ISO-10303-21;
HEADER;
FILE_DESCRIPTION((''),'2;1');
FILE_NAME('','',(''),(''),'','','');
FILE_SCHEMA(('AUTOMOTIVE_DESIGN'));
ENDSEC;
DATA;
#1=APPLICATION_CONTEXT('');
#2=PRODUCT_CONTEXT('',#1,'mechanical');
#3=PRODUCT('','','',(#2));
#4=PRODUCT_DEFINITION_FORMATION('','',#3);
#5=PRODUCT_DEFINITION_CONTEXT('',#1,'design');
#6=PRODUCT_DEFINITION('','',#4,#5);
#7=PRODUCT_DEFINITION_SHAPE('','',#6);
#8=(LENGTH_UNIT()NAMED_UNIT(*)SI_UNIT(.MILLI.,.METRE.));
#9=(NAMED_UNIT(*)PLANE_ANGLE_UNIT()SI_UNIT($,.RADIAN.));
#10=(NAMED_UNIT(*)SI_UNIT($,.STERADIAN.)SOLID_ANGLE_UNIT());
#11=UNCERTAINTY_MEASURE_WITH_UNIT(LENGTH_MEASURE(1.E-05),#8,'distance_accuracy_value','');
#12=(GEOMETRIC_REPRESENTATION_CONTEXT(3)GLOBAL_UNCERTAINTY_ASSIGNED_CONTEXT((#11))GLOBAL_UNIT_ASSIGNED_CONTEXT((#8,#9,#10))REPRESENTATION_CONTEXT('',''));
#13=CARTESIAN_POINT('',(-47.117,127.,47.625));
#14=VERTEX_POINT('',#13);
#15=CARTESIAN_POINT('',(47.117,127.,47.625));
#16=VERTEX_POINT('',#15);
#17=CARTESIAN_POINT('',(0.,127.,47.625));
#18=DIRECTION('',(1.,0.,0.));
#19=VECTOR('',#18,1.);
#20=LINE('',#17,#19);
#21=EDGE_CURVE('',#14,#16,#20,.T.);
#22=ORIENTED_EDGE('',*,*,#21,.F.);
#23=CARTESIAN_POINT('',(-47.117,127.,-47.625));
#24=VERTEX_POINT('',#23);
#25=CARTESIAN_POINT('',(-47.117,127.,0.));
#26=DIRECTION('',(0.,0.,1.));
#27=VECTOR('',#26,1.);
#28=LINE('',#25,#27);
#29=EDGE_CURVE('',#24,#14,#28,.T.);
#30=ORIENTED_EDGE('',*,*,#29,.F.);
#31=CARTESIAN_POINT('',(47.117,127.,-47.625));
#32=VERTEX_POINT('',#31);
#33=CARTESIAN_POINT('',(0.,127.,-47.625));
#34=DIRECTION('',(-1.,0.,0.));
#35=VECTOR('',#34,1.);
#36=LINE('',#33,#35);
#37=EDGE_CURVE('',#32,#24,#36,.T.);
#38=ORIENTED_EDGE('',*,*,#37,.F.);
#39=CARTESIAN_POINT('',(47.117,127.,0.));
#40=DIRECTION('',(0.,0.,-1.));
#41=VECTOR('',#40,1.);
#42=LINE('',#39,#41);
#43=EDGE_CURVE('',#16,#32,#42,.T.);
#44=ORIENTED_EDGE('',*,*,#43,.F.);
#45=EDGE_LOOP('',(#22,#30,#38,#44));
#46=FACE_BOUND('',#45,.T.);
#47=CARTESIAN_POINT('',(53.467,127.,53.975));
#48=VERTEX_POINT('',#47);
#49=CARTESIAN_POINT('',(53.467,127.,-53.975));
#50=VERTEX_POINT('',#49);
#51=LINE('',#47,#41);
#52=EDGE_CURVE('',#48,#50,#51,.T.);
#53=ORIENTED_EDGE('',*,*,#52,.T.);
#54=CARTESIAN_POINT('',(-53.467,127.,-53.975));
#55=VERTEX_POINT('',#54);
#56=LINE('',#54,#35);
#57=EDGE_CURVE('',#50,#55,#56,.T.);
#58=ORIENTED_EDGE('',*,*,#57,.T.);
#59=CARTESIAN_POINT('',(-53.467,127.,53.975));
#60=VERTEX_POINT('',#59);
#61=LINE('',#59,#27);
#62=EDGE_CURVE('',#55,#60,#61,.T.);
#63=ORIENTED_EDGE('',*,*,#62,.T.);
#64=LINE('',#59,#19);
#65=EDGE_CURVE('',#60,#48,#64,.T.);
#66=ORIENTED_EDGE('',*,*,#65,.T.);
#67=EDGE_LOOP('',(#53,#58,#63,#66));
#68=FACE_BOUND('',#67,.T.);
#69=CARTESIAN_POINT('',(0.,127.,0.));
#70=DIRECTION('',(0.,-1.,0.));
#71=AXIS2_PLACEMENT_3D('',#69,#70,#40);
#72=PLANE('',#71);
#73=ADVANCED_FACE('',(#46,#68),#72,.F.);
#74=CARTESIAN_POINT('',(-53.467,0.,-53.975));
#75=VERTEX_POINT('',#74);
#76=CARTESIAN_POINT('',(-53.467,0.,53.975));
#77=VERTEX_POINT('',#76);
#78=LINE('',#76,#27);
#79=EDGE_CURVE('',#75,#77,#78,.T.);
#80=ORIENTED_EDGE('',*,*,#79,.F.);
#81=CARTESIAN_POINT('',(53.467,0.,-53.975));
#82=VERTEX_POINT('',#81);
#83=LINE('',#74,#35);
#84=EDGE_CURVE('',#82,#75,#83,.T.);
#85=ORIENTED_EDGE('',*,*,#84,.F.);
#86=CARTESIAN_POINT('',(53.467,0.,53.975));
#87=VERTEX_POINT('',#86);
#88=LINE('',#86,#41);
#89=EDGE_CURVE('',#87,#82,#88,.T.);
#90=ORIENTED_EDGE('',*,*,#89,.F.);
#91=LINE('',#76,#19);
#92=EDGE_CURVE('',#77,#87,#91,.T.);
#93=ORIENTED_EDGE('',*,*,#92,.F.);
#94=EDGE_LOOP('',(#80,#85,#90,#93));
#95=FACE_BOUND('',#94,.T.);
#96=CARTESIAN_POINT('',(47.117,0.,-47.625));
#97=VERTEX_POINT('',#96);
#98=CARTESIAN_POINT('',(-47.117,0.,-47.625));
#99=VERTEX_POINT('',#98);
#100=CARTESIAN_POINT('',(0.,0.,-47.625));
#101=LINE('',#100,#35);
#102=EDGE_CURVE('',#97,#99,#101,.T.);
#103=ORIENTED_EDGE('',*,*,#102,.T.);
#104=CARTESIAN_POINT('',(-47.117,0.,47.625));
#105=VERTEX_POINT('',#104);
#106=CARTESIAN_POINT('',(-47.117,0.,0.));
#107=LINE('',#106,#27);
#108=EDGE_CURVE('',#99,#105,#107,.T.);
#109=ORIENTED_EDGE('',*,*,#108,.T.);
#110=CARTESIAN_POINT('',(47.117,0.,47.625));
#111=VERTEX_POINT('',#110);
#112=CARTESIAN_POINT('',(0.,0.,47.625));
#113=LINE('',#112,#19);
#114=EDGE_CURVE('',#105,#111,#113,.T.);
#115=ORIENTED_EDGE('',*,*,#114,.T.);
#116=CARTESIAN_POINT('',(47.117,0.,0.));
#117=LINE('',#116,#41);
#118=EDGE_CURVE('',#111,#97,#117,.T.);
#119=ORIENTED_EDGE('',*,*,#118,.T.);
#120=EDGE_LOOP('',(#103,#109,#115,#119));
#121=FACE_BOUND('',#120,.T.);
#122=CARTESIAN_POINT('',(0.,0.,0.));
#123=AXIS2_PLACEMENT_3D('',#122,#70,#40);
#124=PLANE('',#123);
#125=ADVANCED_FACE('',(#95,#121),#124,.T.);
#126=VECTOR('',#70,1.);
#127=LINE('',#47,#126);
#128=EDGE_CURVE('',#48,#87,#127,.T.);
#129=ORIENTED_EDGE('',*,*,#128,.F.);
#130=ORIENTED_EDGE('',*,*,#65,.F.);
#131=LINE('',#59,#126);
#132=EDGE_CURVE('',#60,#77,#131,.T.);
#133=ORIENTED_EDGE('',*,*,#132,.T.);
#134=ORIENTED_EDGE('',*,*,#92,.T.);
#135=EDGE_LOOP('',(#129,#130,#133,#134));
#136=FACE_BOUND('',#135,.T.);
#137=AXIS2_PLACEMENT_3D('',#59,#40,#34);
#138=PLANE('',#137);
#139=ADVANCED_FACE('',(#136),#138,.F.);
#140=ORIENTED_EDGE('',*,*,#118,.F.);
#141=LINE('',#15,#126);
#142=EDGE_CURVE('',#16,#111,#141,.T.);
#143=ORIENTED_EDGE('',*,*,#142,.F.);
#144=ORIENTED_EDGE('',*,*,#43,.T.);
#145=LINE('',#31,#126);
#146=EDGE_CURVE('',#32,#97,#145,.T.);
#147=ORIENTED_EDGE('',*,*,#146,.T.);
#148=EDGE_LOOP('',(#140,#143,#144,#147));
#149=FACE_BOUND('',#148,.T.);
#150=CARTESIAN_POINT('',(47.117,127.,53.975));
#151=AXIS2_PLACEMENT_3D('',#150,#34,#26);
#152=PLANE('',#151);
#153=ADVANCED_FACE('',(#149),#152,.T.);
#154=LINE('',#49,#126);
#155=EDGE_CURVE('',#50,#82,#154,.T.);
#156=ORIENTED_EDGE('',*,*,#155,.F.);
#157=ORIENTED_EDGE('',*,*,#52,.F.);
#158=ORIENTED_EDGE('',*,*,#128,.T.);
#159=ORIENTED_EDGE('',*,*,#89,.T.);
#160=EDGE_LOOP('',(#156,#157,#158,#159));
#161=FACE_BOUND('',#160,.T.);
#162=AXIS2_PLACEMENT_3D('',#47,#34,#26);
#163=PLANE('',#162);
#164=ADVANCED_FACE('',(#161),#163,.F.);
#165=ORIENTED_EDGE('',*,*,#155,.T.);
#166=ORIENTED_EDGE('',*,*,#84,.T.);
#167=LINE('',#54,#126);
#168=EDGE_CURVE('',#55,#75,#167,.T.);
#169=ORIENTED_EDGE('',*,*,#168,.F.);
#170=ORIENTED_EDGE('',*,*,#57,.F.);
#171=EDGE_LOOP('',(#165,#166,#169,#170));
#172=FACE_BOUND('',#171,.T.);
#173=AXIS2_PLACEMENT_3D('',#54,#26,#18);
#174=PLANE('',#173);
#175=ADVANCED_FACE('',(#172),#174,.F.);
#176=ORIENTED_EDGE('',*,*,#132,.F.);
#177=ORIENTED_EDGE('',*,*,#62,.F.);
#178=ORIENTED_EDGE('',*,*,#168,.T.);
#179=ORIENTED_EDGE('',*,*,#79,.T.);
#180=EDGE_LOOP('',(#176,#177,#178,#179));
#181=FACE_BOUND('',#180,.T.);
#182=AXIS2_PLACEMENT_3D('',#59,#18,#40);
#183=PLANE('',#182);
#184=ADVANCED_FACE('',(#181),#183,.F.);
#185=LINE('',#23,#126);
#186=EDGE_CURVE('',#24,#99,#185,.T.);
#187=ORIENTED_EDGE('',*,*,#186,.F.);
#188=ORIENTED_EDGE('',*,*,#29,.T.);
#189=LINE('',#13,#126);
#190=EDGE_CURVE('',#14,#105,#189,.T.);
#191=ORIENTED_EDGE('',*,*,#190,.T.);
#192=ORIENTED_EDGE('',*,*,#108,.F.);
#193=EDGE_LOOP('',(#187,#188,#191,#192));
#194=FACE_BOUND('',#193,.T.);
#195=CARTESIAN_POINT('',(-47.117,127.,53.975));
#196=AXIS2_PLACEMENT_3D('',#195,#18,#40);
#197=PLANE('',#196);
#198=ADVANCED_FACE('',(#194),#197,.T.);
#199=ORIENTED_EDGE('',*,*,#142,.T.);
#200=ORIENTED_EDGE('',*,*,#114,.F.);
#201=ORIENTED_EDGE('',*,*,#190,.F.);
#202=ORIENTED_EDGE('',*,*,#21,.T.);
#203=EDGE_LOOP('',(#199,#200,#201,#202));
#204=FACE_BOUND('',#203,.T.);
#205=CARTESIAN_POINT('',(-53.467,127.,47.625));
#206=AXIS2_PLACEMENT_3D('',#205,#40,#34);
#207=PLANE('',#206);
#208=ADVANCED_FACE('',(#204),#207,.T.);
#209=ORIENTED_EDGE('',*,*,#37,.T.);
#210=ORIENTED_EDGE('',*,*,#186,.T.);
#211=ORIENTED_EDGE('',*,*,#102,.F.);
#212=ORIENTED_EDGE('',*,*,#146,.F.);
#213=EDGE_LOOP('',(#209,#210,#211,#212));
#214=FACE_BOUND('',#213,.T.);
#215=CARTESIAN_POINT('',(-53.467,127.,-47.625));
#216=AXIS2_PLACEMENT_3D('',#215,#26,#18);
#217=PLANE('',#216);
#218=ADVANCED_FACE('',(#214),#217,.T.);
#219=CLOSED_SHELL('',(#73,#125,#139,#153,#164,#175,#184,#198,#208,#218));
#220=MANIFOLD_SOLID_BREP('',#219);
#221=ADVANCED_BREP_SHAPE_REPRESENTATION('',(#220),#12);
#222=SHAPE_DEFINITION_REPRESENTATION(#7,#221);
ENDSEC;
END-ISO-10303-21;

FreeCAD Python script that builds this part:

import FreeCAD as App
import Part
import Sketcher
Q = App.Units.Quantity


def faces_at(feature, points):
    """Names of the faces that lie closest to the given points."""
    faces = feature.Shape.Faces
    near = lambda p: min(range(len(faces)), key=lambda i: faces[i].distToShape(Part.Vertex(*p))[0])
    return sorted({f"Face{near(p) + 1}" for p in points})

doc = App.newDocument("Part")
params = doc.addObject("Spreadsheet::Sheet", "Params")
for row, (alias, value) in enumerate([
    ("sketch1_width", "4.21 in"),
    ("sketch1_height", "4.25 in"),
    ("pad1_length", "5 in"),
    ("thickness_wall", "0.25 in"),
], start=1):
    params.set(f"A{row}", alias)
    params.set(f"B{row}", "=" + value)
    params.setAlias(f"B{row}", alias)

body = doc.addObject("PartDesign::Body", "Body")

# Sketch on XZ plane
sketch1 = doc.addObject("Sketcher::SketchObject", "Sketch")
body.addObject(sketch1)
sketch1.AttachmentSupport = (doc.XZ_Plane, [""])
sketch1.MapMode = "FlatFace"
sketch1.addGeometry([
    Part.LineSegment(App.Vector(-53, -54, 0), App.Vector(-53, 54, 0)),
    Part.LineSegment(App.Vector(-53, 54, 0), App.Vector(53, 54, 0)),
    Part.LineSegment(App.Vector(53, 54, 0), App.Vector(53, -54, 0)),
    Part.LineSegment(App.Vector(53, -54, 0), App.Vector(-53, -54, 0)),
], False)
sketch1.addConstraint([
    Sketcher.Constraint("Coincident", 0, 2, 1, 1),
    Sketcher.Constraint("Coincident", 1, 2, 2, 1),
    Sketcher.Constraint("Coincident", 2, 2, 3, 1),
    Sketcher.Constraint("Coincident", 3, 2, 0, 1),
    Sketcher.Constraint("Vertical", 0),
    Sketcher.Constraint("Horizontal", 1),
    Sketcher.Constraint("Vertical", 2),
    Sketcher.Constraint("Horizontal", 3),
    Sketcher.Constraint("Symmetric", 0, 2, 2, 2, -1, 1),
    Sketcher.Constraint("DistanceX", 1, 1, 1, 2, Q("4.21 in")),
    Sketcher.Constraint("DistanceY", 0, 1, 0, 2, Q("4.25 in")),
])
sketch1.setExpression("Constraints[9]", "Params.sketch1_width")
sketch1.setExpression("Constraints[10]", "Params.sketch1_height")
pad1 = doc.addObject("PartDesign::Pad", "Pad")
body.addObject(pad1)
pad1.Profile = sketch1
pad1.setExpression("Length", "Params.pad1_length")
pad1.Reversed = True
doc.recompute()

thickness = doc.addObject("PartDesign::Thickness", "Thickness")
body.addObject(thickness)
thickness.Base = (pad1, faces_at(pad1, [(0, 127, 0), (0, 0, 0)]))
thickness.setExpression("Value", "Params.thickness_wall")
thickness.Reversed = True
thickness.Join = "Intersection"

doc.recompute()
